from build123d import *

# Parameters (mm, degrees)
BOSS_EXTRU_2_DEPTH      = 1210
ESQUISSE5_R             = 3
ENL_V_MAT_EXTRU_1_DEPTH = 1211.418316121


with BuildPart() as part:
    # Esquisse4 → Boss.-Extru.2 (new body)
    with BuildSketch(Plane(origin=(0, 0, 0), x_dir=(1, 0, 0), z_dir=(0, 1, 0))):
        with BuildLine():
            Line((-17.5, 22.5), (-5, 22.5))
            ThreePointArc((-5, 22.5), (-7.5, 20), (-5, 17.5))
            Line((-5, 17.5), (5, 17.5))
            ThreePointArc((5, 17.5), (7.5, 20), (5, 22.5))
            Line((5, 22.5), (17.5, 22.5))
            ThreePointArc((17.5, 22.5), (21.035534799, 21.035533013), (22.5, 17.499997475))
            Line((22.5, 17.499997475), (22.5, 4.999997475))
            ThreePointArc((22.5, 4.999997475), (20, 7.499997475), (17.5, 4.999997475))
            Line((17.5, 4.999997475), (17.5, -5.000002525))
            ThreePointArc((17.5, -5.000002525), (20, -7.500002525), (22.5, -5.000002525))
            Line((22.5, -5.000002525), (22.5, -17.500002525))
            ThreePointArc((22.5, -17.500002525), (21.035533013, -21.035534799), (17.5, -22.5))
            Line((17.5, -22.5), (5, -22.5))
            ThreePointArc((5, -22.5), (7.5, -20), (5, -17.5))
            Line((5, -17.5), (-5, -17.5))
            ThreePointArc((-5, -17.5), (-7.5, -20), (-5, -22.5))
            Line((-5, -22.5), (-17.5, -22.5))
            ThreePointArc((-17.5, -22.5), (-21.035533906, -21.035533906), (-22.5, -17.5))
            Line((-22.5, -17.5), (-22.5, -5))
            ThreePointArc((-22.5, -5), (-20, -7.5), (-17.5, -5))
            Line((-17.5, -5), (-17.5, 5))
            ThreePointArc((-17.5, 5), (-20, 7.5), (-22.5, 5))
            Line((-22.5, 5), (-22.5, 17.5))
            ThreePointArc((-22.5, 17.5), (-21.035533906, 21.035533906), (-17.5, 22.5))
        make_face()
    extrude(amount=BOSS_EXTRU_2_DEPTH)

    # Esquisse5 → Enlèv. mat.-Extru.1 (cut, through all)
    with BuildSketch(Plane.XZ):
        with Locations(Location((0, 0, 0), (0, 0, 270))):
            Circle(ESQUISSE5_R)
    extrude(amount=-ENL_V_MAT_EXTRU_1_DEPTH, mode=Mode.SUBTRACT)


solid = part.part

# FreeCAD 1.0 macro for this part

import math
import FreeCAD as App
import Part
import Sketcher
Q = App.Units.Quantity

doc = App.newDocument("Part")
body = doc.addObject("PartDesign::Body", "Body")

# Sketch on XZ plane
sketch1 = body.newObject("Sketcher::SketchObject", "Sketch")
sketch1.AttachmentSupport = (doc.getObject("XZ_Plane"), [""])
sketch1.MapMode = "FlatFace"
sketch1.addGeometry(Part.LineSegment(App.Vector(-5, -22.5, 0), App.Vector(-17.5, -22.5, 0)), False)
sketch1.addGeometry(Part.ArcOfCircle(Part.Circle(App.Vector(-17.5, -17.5, 0), App.Vector(0, 0, 1), 5), math.radians(180), math.radians(270)), False)
sketch1.addGeometry(Part.LineSegment(App.Vector(-22.5, -17.5, 0), App.Vector(-22.5, -5, 0)), False)
sketch1.addGeometry(Part.ArcOfCircle(Part.Circle(App.Vector(-20, -5, 0), App.Vector(0, 0, 1), 2.5), math.radians(180), math.radians(360)), False)
sketch1.addGeometry(Part.LineSegment(App.Vector(-17.5, -5, 0), App.Vector(-17.5, 5, 0)), False)
sketch1.addGeometry(Part.ArcOfCircle(Part.Circle(App.Vector(-20, 5, 0), App.Vector(0, 0, 1), 2.5), math.radians(0), math.radians(180)), False)
sketch1.addGeometry(Part.LineSegment(App.Vector(-22.5, 5, 0), App.Vector(-22.5, 17.5, 0)), False)
sketch1.addGeometry(Part.ArcOfCircle(Part.Circle(App.Vector(-17.5, 17.5, 0), App.Vector(0, 0, 1), 5), math.radians(90), math.radians(180)), False)
sketch1.addGeometry(Part.LineSegment(App.Vector(-17.5, 22.5, 0), App.Vector(-5, 22.5, 0)), False)
sketch1.addGeometry(Part.ArcOfCircle(Part.Circle(App.Vector(-5, 20, 0), App.Vector(0, 0, 1), 2.5), math.radians(90), math.radians(270)), False)
sketch1.addGeometry(Part.LineSegment(App.Vector(-5, 17.5, 0), App.Vector(5, 17.5, 0)), False)
sketch1.addGeometry(Part.ArcOfCircle(Part.Circle(App.Vector(5, 20, 0), App.Vector(0, 0, 1), 2.5), math.radians(-90), math.radians(90)), False)
sketch1.addGeometry(Part.LineSegment(App.Vector(5, 22.5, 0), App.Vector(17.5, 22.5, 0)), False)
sketch1.addGeometry(Part.ArcOfCircle(Part.Circle(App.Vector(17.5, 17.5, 0), App.Vector(0, 0, 1), 5), math.radians(0), math.radians(90)), False)
sketch1.addGeometry(Part.LineSegment(App.Vector(22.5, 17.5, 0), App.Vector(22.5, 5, 0)), False)
sketch1.addGeometry(Part.ArcOfCircle(Part.Circle(App.Vector(20, 5, 0), App.Vector(0, 0, 1), 2.5), math.radians(0), math.radians(180)), False)
sketch1.addGeometry(Part.LineSegment(App.Vector(17.5, 5, 0), App.Vector(17.5, -5, 0)), False)
sketch1.addGeometry(Part.ArcOfCircle(Part.Circle(App.Vector(20, -5, 0), App.Vector(0, 0, 1), 2.5), math.radians(180), math.radians(360)), False)
sketch1.addGeometry(Part.LineSegment(App.Vector(22.5, -5, 0), App.Vector(22.5, -17.5, 0)), False)
sketch1.addGeometry(Part.ArcOfCircle(Part.Circle(App.Vector(17.5, -17.5, 0), App.Vector(0, 0, 1), 5), math.radians(-90), math.radians(0)), False)
sketch1.addGeometry(Part.LineSegment(App.Vector(17.5, -22.5, 0), App.Vector(5, -22.5, 0)), False)
sketch1.addGeometry(Part.ArcOfCircle(Part.Circle(App.Vector(5, -20, 0), App.Vector(0, 0, 1), 2.5), math.radians(-90), math.radians(90)), False)
sketch1.addGeometry(Part.LineSegment(App.Vector(5, -17.5, 0), App.Vector(-5, -17.5, 0)), False)
sketch1.addGeometry(Part.ArcOfCircle(Part.Circle(App.Vector(-5, -20, 0), App.Vector(0, 0, 1), 2.5), math.radians(90), math.radians(270)), False)
sketch1.addConstraint(Sketcher.Constraint("Tangent", 0, 2, 1, 2))
sketch1.addConstraint(Sketcher.Constraint("Tangent", 1, 1, 2, 1))
sketch1.addConstraint(Sketcher.Constraint("Tangent", 2, 2, 3, 1))
sketch1.addConstraint(Sketcher.Constraint("Tangent", 3, 2, 4, 1))
sketch1.addConstraint(Sketcher.Constraint("Tangent", 4, 2, 5, 1))
sketch1.addConstraint(Sketcher.Constraint("Tangent", 5, 2, 6, 1))
sketch1.addConstraint(Sketcher.Constraint("Tangent", 6, 2, 7, 2))
sketch1.addConstraint(Sketcher.Constraint("Tangent", 7, 1, 8, 1))
sketch1.addConstraint(Sketcher.Constraint("Tangent", 8, 2, 9, 1))
sketch1.addConstraint(Sketcher.Constraint("Tangent", 9, 2, 10, 1))
sketch1.addConstraint(Sketcher.Constraint("Tangent", 10, 2, 11, 1))
sketch1.addConstraint(Sketcher.Constraint("Tangent", 11, 2, 12, 1))
sketch1.addConstraint(Sketcher.Constraint("Tangent", 12, 2, 13, 2))
sketch1.addConstraint(Sketcher.Constraint("Tangent", 13, 1, 14, 1))
sketch1.addConstraint(Sketcher.Constraint("Tangent", 14, 2, 15, 1))
sketch1.addConstraint(Sketcher.Constraint("Tangent", 15, 2, 16, 1))
sketch1.addConstraint(Sketcher.Constraint("Tangent", 16, 2, 17, 1))
sketch1.addConstraint(Sketcher.Constraint("Tangent", 17, 2, 18, 1))
sketch1.addConstraint(Sketcher.Constraint("Tangent", 18, 2, 19, 2))
sketch1.addConstraint(Sketcher.Constraint("Tangent", 19, 1, 20, 1))
sketch1.addConstraint(Sketcher.Constraint("Tangent", 20, 2, 21, 1))
sketch1.addConstraint(Sketcher.Constraint("Tangent", 21, 2, 22, 1))
sketch1.addConstraint(Sketcher.Constraint("Tangent", 22, 2, 23, 1))
sketch1.addConstraint(Sketcher.Constraint("Tangent", 23, 2, 0, 1))
sketch1.addConstraint(Sketcher.Constraint("Horizontal", 0))
sketch1.addConstraint(Sketcher.Constraint("Vertical", 2))
sketch1.addConstraint(Sketcher.Constraint("Vertical", 4))
sketch1.addConstraint(Sketcher.Constraint("Vertical", 6))
sketch1.addConstraint(Sketcher.Constraint("Horizontal", 8))
sketch1.addConstraint(Sketcher.Constraint("Horizontal", 10))
sketch1.addConstraint(Sketcher.Constraint("Horizontal", 12))
sketch1.addConstraint(Sketcher.Constraint("Vertical", 14))
sketch1.addConstraint(Sketcher.Constraint("Vertical", 16))
sketch1.addConstraint(Sketcher.Constraint("Vertical", 18))
sketch1.addConstraint(Sketcher.Constraint("Horizontal", 20))
sketch1.addConstraint(Sketcher.Constraint("Horizontal", 22))
sketch1.addConstraint(Sketcher.Constraint("Equal", 3, 5))
sketch1.addConstraint(Sketcher.Constraint("Equal", 1, 7))
sketch1.addConstraint(Sketcher.Constraint("Equal", 5, 9))
sketch1.addConstraint(Sketcher.Constraint("Equal", 9, 11))
sketch1.addConstraint(Sketcher.Constraint("Equal", 7, 13))
sketch1.addConstraint(Sketcher.Constraint("Equal", 11, 15))
sketch1.addConstraint(Sketcher.Constraint("Equal", 15, 17))
sketch1.addConstraint(Sketcher.Constraint("Equal", 13, 19))
sketch1.addConstraint(Sketcher.Constraint("Equal", 17, 21))
sketch1.addConstraint(Sketcher.Constraint("Equal", 21, 23))
sketch1.addConstraint(Sketcher.Constraint("Symmetric", 1, 3, 13, 3, -1, 1))
sketch1.addConstraint(Sketcher.Constraint("Horizontal", 6, 2, 9, 2))
sketch1.addConstraint(Sketcher.Constraint("Vertical", 11, 3, 21, 3))
sketch1.addConstraint(Sketcher.Constraint("Vertical", 9, 3, 23, 3))
sketch1.addConstraint(Sketcher.Constraint("Equal", 8, 12))
sketch1.addConstraint(Sketcher.Constraint("Equal", 20, 2))
sketch1.addConstraint(Sketcher.Constraint("Equal", 22, 4))
sketch1.addConstraint(Sketcher.Constraint("Equal", 2, 6))
sketch1.addConstraint(Sketcher.Constraint("Equal", 6, 14))
sketch1.addConstraint(Sketcher.Constraint("Equal", 4, 16))
sketch1.addConstraint(Sketcher.Constraint("Radius", 1, Q("5 mm")))
sketch1.addConstraint(Sketcher.Constraint("DistanceX", 10, 1, 10, 2, Q("10 mm")))
sketch1.addConstraint(Sketcher.Constraint("DistanceX", 0, 2, 0, 1, Q("12.5 mm")))
pad1 = body.newObject("PartDesign::Pad", "Pad")
pad1.Profile = sketch1
pad1.Length = 1210
pad1.Reversed = True

# Sketch on XZ plane
sketch2 = body.newObject("Sketcher::SketchObject", "Sketch001")
sketch2.AttachmentSupport = (doc.getObject("XZ_Plane"), [""])
sketch2.MapMode = "FlatFace"
sketch2.addGeometry(Part.Circle(App.Vector(0, 0, 0), App.Vector(0, 0, 1), 3), False)
sketch2.addConstraint(Sketcher.Constraint("Coincident", 0, 3, -1, 1))
sketch2.addConstraint(Sketcher.Constraint("Diameter", 0, Q("6 mm")))
pocket1 = body.newObject("PartDesign::Pocket", "Pocket")
pocket1.Profile = sketch2
pocket1.Type = "ThroughAll"

doc.recompute()
